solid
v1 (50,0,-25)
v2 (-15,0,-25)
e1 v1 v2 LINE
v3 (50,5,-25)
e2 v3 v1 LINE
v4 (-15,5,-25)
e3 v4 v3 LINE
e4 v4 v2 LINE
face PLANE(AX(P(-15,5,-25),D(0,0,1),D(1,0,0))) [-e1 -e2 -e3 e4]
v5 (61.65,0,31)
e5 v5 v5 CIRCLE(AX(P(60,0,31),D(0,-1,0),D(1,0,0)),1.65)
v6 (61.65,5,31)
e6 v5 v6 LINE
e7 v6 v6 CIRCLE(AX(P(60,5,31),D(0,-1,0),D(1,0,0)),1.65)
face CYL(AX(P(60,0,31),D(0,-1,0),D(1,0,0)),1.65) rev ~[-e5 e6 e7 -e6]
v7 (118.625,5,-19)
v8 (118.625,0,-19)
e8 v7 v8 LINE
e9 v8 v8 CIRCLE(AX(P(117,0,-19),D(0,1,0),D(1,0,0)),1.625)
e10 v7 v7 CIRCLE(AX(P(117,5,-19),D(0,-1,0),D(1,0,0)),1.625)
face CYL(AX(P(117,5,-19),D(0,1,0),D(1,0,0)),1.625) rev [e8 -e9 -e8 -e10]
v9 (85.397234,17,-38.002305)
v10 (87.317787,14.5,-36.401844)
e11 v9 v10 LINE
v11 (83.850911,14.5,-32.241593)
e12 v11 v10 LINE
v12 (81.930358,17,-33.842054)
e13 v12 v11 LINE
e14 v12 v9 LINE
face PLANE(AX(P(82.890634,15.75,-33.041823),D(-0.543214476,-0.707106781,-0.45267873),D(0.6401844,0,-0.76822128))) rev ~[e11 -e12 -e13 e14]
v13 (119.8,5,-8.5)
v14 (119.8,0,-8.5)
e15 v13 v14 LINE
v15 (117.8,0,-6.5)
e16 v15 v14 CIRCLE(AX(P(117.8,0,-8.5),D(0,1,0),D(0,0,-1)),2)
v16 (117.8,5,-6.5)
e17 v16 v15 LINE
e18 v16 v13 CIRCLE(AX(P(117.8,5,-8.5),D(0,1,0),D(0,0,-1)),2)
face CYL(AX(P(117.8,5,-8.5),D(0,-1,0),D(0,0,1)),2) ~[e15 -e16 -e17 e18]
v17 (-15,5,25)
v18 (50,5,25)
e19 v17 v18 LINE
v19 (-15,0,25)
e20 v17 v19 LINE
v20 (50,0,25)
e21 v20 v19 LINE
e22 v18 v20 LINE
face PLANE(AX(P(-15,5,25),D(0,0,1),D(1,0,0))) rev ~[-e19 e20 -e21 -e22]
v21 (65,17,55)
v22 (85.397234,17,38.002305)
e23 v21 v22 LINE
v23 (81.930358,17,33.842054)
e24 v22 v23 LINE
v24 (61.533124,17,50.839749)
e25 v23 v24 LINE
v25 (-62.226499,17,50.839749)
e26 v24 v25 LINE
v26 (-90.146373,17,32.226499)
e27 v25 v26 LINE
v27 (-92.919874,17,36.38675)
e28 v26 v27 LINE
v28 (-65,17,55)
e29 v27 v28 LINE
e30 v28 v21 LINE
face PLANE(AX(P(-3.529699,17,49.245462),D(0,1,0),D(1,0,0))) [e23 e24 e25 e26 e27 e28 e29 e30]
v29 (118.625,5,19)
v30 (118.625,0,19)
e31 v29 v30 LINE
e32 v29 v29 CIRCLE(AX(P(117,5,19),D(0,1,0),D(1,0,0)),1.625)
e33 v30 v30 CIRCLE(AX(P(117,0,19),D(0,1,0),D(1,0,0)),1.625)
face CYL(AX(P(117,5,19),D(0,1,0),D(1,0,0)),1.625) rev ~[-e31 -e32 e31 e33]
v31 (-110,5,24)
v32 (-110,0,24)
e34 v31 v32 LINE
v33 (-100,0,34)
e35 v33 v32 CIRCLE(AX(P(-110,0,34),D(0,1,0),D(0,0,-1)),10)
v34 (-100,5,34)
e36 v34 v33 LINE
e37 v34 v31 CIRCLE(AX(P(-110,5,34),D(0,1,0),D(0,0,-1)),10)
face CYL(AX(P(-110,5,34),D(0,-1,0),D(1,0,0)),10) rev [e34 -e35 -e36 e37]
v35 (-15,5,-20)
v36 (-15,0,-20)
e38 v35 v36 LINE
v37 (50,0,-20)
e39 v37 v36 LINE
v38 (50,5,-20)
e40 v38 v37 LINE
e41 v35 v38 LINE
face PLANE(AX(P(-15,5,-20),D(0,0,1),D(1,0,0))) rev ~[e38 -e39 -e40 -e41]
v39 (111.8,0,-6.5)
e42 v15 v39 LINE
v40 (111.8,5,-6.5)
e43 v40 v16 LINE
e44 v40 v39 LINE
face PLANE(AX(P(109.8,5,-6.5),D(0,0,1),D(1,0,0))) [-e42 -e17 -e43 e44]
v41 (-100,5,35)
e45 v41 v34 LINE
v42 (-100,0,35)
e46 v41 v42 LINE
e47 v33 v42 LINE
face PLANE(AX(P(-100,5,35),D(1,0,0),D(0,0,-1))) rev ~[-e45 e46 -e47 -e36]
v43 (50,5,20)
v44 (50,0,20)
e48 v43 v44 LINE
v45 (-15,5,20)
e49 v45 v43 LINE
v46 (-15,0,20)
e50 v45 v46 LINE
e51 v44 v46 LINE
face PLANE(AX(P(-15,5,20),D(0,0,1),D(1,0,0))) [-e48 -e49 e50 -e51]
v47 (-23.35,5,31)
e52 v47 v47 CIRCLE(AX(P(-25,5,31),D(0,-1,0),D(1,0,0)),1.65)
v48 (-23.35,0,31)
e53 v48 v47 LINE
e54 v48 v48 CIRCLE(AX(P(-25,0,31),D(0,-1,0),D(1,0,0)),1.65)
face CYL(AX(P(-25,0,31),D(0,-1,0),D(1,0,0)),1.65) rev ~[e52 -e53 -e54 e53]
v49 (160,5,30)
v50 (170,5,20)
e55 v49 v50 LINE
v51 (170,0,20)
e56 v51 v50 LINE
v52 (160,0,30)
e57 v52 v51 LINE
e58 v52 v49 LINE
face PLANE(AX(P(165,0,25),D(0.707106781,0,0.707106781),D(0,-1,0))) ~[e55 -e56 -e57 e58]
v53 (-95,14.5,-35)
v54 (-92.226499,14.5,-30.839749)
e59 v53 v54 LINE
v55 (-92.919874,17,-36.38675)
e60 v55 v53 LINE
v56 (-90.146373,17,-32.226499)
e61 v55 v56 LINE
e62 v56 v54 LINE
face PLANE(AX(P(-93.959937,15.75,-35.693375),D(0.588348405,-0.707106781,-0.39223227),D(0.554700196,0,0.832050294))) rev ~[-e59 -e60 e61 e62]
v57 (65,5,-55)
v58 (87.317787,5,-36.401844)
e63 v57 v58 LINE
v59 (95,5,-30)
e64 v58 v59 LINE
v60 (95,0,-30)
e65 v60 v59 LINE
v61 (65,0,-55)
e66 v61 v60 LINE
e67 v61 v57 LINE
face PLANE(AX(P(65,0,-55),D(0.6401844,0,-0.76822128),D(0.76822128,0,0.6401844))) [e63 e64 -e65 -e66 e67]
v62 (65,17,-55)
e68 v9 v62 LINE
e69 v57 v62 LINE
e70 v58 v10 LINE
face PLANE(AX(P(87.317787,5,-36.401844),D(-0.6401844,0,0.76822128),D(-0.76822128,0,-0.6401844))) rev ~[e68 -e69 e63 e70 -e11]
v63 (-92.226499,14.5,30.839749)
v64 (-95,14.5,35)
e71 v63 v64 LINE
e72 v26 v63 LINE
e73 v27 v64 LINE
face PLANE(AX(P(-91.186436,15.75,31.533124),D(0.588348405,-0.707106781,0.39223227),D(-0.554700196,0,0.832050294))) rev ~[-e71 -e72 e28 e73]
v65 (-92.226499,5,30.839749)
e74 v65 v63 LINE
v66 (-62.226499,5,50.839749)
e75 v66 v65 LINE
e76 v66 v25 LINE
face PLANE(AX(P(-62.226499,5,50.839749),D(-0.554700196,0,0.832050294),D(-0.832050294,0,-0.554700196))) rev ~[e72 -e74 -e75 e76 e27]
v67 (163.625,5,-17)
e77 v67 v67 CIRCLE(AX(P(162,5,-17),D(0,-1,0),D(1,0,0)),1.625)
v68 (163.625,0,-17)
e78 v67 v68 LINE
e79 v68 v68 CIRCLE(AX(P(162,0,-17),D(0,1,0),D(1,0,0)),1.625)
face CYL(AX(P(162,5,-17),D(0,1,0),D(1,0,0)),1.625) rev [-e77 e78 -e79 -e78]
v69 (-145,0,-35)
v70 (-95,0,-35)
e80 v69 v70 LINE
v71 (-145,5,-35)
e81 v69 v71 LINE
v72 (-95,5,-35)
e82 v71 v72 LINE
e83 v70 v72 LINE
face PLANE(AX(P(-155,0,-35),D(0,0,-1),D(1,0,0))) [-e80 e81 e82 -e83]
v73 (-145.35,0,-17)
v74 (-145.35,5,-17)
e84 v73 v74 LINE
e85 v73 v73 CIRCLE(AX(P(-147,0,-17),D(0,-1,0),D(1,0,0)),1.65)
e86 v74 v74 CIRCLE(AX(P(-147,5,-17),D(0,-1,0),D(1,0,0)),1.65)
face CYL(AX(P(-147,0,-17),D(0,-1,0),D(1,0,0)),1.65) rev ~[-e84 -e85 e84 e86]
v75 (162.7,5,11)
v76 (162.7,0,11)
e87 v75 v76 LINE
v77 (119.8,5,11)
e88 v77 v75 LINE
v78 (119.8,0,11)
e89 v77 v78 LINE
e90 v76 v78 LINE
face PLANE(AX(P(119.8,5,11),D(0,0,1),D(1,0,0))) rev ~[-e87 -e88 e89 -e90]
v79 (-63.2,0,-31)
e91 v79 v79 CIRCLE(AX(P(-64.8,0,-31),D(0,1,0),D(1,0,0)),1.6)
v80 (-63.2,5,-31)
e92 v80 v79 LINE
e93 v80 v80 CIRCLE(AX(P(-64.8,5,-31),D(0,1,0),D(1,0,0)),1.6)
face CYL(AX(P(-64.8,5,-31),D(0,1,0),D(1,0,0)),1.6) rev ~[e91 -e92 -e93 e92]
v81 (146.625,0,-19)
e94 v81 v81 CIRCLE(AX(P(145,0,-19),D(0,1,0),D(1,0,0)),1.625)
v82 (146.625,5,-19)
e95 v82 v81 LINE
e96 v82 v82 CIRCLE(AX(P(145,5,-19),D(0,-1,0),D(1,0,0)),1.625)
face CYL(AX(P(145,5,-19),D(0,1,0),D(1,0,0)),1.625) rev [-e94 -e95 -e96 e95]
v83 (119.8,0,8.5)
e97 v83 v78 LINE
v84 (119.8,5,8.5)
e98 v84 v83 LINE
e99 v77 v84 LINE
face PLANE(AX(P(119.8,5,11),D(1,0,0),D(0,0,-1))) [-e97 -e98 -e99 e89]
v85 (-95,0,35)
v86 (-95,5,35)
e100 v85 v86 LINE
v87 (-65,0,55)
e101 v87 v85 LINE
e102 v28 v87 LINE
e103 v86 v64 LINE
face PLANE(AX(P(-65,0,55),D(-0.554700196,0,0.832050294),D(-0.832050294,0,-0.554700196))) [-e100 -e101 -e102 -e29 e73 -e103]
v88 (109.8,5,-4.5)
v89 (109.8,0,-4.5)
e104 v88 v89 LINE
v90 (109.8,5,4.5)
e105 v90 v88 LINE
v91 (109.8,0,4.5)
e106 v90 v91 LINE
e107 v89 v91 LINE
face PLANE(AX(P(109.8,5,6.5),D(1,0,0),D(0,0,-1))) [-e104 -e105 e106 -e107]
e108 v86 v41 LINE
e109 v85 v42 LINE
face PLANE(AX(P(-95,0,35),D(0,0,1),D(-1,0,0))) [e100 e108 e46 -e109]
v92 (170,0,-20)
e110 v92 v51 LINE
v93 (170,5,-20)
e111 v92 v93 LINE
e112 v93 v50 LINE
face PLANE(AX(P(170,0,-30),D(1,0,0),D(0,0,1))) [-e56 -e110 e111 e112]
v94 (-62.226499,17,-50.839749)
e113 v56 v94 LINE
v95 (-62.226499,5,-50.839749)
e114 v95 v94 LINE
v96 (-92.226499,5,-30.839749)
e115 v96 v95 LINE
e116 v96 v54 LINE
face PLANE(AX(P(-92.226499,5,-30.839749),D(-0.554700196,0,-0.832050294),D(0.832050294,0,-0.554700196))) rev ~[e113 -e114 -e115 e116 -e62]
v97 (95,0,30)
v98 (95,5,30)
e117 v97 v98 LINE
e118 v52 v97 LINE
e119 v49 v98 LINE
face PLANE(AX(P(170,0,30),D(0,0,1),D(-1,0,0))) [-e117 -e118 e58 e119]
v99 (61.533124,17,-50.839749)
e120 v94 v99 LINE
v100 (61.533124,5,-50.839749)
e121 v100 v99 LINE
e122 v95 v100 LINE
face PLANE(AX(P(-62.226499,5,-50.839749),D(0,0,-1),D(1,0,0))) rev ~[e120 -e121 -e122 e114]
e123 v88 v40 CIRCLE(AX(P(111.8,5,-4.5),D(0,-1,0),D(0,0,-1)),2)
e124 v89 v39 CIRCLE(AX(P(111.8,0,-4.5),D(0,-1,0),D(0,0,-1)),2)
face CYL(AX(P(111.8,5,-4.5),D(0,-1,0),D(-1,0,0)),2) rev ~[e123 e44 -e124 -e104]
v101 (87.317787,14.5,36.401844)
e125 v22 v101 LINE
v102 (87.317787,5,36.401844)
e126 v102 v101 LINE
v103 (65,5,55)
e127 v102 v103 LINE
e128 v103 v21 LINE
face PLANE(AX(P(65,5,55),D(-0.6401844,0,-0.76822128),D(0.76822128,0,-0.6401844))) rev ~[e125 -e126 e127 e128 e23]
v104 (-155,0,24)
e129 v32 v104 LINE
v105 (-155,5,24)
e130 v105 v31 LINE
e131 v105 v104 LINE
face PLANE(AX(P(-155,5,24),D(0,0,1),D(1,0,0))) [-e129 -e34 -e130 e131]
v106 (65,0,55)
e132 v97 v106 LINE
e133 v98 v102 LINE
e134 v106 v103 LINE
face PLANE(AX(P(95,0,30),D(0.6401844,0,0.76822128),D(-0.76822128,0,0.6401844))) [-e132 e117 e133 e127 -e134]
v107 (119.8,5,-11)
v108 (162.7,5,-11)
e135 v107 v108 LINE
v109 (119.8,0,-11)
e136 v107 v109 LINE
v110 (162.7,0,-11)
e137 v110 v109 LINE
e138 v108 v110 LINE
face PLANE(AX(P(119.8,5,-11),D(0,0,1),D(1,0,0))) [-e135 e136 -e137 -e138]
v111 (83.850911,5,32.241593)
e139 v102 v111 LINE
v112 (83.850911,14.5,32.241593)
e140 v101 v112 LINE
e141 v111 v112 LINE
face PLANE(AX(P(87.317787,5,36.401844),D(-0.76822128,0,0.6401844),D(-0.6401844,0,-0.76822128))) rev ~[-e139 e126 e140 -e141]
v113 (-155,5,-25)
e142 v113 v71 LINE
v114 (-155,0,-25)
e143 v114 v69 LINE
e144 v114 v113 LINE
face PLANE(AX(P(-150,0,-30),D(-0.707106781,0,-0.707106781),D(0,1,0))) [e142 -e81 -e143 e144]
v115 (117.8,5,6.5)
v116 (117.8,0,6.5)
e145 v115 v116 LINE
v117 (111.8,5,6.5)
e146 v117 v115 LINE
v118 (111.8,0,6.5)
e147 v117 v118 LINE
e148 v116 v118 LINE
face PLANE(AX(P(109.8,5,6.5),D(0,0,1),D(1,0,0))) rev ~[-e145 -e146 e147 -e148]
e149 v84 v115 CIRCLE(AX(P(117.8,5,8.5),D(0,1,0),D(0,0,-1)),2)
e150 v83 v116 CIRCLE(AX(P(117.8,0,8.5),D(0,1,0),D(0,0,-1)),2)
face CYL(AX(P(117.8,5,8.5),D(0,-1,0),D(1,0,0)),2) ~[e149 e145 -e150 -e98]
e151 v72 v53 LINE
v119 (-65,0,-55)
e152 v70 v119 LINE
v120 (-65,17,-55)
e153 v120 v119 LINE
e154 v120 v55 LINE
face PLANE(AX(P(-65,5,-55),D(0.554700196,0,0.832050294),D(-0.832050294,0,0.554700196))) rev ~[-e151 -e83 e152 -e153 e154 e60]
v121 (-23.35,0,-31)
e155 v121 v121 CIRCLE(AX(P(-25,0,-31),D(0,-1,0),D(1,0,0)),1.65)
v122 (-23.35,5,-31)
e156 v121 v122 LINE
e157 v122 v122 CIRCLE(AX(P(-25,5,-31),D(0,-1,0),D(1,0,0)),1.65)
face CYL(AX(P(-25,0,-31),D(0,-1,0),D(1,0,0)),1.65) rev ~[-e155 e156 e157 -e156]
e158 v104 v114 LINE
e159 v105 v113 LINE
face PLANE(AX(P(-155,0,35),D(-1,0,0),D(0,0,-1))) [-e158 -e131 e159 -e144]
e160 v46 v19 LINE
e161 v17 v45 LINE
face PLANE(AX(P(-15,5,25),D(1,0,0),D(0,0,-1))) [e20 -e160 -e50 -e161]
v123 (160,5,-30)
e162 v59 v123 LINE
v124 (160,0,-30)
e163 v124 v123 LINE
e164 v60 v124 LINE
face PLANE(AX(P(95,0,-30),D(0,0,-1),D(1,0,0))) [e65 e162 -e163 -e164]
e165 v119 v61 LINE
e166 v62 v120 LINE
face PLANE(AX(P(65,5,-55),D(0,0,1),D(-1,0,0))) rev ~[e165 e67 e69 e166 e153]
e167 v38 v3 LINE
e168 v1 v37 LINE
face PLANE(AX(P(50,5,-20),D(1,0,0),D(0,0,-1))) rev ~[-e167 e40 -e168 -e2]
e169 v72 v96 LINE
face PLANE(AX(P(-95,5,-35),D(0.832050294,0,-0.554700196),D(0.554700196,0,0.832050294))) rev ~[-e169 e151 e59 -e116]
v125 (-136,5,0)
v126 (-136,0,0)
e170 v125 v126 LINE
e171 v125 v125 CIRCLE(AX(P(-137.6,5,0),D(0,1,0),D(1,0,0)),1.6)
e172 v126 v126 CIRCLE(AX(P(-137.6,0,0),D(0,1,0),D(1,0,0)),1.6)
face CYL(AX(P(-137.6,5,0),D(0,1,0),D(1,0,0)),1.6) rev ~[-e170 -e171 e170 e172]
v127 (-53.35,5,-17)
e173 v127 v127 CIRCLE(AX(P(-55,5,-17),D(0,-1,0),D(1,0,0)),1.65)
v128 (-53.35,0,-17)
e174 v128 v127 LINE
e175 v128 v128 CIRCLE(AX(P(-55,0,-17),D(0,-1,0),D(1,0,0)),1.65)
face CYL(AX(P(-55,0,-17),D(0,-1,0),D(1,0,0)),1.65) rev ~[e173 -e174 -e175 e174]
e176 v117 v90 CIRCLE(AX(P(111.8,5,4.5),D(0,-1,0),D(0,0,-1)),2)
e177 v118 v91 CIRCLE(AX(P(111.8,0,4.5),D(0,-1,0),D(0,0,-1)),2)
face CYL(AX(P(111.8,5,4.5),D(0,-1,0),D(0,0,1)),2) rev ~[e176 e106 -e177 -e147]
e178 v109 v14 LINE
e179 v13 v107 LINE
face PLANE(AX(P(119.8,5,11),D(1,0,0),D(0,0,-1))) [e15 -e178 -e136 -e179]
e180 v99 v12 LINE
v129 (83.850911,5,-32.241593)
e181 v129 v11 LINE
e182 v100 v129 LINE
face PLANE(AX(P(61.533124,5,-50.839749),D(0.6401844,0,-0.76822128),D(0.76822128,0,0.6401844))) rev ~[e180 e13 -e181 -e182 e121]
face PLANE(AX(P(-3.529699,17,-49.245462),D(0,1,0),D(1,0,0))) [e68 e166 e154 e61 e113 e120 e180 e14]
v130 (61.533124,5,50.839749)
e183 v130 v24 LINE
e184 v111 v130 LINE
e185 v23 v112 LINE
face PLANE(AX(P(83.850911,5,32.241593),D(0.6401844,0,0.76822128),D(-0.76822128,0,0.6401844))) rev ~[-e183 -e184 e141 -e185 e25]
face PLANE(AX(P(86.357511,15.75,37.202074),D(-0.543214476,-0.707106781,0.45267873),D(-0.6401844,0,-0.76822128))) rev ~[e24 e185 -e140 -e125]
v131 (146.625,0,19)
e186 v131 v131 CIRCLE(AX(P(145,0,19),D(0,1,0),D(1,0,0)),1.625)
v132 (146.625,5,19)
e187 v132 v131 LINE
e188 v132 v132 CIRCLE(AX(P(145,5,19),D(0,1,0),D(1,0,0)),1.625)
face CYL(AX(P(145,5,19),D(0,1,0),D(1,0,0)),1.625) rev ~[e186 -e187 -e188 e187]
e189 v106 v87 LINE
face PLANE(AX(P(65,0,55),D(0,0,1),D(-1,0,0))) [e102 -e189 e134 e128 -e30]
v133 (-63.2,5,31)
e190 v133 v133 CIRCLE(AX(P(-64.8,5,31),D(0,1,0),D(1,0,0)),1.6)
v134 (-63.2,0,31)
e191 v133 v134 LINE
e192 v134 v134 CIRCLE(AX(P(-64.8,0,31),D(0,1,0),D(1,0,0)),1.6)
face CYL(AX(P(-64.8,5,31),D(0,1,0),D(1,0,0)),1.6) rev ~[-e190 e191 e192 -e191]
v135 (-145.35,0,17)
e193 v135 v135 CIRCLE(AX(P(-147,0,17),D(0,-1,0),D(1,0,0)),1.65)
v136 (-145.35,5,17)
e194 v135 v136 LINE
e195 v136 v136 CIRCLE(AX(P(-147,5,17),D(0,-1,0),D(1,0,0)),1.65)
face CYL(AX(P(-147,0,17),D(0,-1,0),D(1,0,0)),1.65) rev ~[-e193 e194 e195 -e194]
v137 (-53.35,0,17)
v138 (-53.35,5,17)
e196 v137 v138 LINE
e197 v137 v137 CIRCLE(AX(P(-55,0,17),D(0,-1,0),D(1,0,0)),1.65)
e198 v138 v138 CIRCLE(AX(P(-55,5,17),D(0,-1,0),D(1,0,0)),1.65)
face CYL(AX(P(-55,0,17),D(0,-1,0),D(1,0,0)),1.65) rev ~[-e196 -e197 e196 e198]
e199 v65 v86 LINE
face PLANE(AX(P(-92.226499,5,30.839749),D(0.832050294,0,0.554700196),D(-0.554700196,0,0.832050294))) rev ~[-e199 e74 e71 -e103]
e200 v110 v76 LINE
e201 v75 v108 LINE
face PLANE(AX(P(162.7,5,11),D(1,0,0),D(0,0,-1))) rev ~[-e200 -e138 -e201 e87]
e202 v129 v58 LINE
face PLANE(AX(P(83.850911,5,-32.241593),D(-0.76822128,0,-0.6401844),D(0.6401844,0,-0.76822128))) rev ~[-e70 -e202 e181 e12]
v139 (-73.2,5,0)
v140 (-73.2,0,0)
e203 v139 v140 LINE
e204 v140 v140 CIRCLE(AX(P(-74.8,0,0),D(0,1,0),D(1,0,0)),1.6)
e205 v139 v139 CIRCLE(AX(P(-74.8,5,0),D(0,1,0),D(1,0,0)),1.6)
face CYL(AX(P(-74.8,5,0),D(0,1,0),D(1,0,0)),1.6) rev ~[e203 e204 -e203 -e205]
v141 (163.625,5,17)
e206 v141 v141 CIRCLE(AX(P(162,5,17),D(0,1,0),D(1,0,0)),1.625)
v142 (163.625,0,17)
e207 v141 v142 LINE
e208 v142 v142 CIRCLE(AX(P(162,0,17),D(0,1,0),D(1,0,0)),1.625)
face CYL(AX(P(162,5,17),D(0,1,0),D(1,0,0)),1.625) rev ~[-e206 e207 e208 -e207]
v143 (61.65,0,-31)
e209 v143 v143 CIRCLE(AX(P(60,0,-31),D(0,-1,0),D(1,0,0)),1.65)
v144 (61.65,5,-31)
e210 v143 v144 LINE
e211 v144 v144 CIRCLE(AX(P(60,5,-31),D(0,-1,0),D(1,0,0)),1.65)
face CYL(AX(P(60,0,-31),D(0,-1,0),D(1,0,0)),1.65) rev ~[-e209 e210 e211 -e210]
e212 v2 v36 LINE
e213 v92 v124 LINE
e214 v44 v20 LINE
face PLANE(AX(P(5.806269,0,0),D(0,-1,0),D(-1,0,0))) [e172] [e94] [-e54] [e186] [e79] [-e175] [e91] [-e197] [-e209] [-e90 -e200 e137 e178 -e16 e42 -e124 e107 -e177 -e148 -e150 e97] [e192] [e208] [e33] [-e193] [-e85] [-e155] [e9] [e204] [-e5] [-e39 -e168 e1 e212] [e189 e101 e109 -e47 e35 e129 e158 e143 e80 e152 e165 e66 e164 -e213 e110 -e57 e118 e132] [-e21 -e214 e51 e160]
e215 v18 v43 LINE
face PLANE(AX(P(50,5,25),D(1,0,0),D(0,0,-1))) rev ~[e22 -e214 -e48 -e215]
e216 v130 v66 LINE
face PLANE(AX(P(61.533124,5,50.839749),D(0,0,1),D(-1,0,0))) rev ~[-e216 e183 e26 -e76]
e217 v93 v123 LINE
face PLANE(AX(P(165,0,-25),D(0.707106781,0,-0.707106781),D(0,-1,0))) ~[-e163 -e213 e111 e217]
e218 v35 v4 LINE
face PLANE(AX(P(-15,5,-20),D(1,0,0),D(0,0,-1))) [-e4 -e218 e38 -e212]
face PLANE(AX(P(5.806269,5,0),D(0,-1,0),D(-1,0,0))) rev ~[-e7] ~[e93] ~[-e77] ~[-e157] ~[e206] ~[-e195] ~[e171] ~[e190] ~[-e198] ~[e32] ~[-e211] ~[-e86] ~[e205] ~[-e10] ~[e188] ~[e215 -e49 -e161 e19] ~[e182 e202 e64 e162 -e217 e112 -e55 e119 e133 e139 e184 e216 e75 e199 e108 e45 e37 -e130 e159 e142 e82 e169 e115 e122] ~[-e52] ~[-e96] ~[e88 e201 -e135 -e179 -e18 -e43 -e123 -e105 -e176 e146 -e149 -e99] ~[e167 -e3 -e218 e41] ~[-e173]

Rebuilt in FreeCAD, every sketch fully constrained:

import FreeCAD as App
import Part
import Sketcher
from FreeCAD import Vector
Q = App.Units.Quantity


def edges_at(feature, points):
    """Names of the edges that pass closest to the given points."""
    edges = feature.Shape.Edges
    near = lambda p: min(range(len(edges)), key=lambda i: edges[i].distToShape(Part.Vertex(*p))[0])
    return sorted({f"Edge{near(p) + 1}" for p in points})

doc = App.newDocument("Part")
body = doc.addObject("PartDesign::Body", "Body")

sketch1 = body.newObject("Sketcher::SketchObject", "Sketch")
sketch1.AttachmentSupport = (doc.getObject("XZ_Plane"), [""])
sketch1.MapMode = "FlatFace"
sketch1.addGeometry(Part.LineSegment(Vector(-65, -55, 0), Vector(-95, -35, 0)), False)
sketch1.addGeometry(Part.LineSegment(Vector(-95, -35, 0), Vector(-155, -35, 0)), False)
sketch1.addGeometry(Part.LineSegment(Vector(-155, -35, 0), Vector(-155, 35, 0)), False)
sketch1.addGeometry(Part.LineSegment(Vector(-155, 35, 0), Vector(-95, 35, 0)), False)
sketch1.addGeometry(Part.LineSegment(Vector(-95, 35, 0), Vector(-65, 55, 0)), False)
sketch1.addGeometry(Part.LineSegment(Vector(-65, 55, 0), Vector(65, 55, 0)), False)
sketch1.addGeometry(Part.LineSegment(Vector(65, 55, 0), Vector(95, 30, 0)), False)
sketch1.addGeometry(Part.LineSegment(Vector(95, 30, 0), Vector(170, 30, 0)), False)
sketch1.addGeometry(Part.LineSegment(Vector(170, 30, 0), Vector(170, -30, 0)), False)
sketch1.addGeometry(Part.LineSegment(Vector(170, -30, 0), Vector(95, -30, 0)), False)
sketch1.addGeometry(Part.LineSegment(Vector(95, -30, 0), Vector(65, -55, 0)), False)
sketch1.addGeometry(Part.LineSegment(Vector(65, -55, 0), Vector(-65, -55, 0)), False)
sketch1.addConstraint(Sketcher.Constraint("Coincident", 0, 2, 1, 1))
sketch1.addConstraint(Sketcher.Constraint("Coincident", 1, 2, 2, 1))
sketch1.addConstraint(Sketcher.Constraint("Coincident", 2, 2, 3, 1))
sketch1.addConstraint(Sketcher.Constraint("Coincident", 3, 2, 4, 1))
sketch1.addConstraint(Sketcher.Constraint("Coincident", 4, 2, 5, 1))
sketch1.addConstraint(Sketcher.Constraint("Coincident", 5, 2, 6, 1))
sketch1.addConstraint(Sketcher.Constraint("Coincident", 6, 2, 7, 1))
sketch1.addConstraint(Sketcher.Constraint("Coincident", 7, 2, 8, 1))
sketch1.addConstraint(Sketcher.Constraint("Coincident", 8, 2, 9, 1))
sketch1.addConstraint(Sketcher.Constraint("Coincident", 9, 2, 10, 1))
sketch1.addConstraint(Sketcher.Constraint("Coincident", 10, 2, 11, 1))
sketch1.addConstraint(Sketcher.Constraint("Coincident", 11, 2, 0, 1))
sketch1.addConstraint(Sketcher.Constraint("Horizontal", 1))
sketch1.addConstraint(Sketcher.Constraint("Vertical", 2))
sketch1.addConstraint(Sketcher.Constraint("Horizontal", 3))
sketch1.addConstraint(Sketcher.Constraint("Horizontal", 5))
sketch1.addConstraint(Sketcher.Constraint("Horizontal", 7))
sketch1.addConstraint(Sketcher.Constraint("Vertical", 8))
sketch1.addConstraint(Sketcher.Constraint("Horizontal", 9))
sketch1.addConstraint(Sketcher.Constraint("Horizontal", 11))
sketch1.addConstraint(Sketcher.Constraint("Symmetric", 4, 2, 10, 2, -1, 1))
sketch1.addConstraint(Sketcher.Constraint("Symmetric", 0, 2, 3, 2, -1))
sketch1.addConstraint(Sketcher.Constraint("Symmetric", 6, 2, 9, 2, -1))
sketch1.addConstraint(Sketcher.Constraint("Vertical", 5, 2, 10, 2))
sketch1.addConstraint(Sketcher.Constraint("Vertical", 4, 2, 11, 2))
sketch1.addConstraint(Sketcher.Constraint("Equal", 3, 8))
sketch1.addConstraint(Sketcher.Constraint("DistanceX", 1, 2, 1, 1, Q("60 mm")))
sketch1.addConstraint(Sketcher.Constraint("DistanceX", 5, 1, 5, 2, Q("130 mm")))
sketch1.addConstraint(Sketcher.Constraint("DistanceX", 7, 1, 7, 2, Q("75 mm")))
sketch1.addConstraint(Sketcher.Constraint("DistanceY", 2, 1, 2, 2, Q("70 mm")))
sketch1.addConstraint(Sketcher.Constraint("DistanceX", 0, 2, -1, 1, Q("95 mm")))
sketch1.addConstraint(Sketcher.Constraint("DistanceY", -1, 1, 4, 2, Q("55 mm")))
sketch1.addConstraint(Sketcher.Constraint("DistanceX", -1, 1, 6, 2, Q("95 mm")))
pad1 = body.newObject("PartDesign::Pad", "Pad")
pad1.Profile = sketch1
pad1.Length = 5
pad1.Reversed = True

sketch2 = body.newObject("Sketcher::SketchObject", "Sketch001")
sketch2.AttachmentSupport = (doc.getObject("XZ_Plane"), [""])
sketch2.MapMode = "FlatFace"
sketch2.AttachmentOffset = App.Placement(Vector(0, 0, -5), App.Rotation())
sketch2.addGeometry(Part.LineSegment(Vector(-65, -55, 0), Vector(-95, -35, 0)), False)
sketch2.addGeometry(Part.LineSegment(Vector(-95, -35, 0), Vector(-92, -31, 0)), False)
sketch2.addGeometry(Part.LineSegment(Vector(-92, -31, 0), Vector(-62, -51, 0)), False)
sketch2.addGeometry(Part.LineSegment(Vector(-62, -51, 0), Vector(62, -51, 0)), False)
sketch2.addGeometry(Part.LineSegment(Vector(62, -51, 0), Vector(84, -32, 0)), False)
sketch2.addGeometry(Part.LineSegment(Vector(84, -32, 0), Vector(87, -36, 0)), False)
sketch2.addGeometry(Part.LineSegment(Vector(87, -36, 0), Vector(65, -55, 0)), False)
sketch2.addGeometry(Part.LineSegment(Vector(65, -55, 0), Vector(-65, -55, 0)), False)
sketch2.addGeometry(Part.LineSegment(Vector(62, 51, 0), Vector(-62, 51, 0)), False)
sketch2.addGeometry(Part.LineSegment(Vector(-62, 51, 0), Vector(-92, 31, 0)), False)
sketch2.addGeometry(Part.LineSegment(Vector(-92, 31, 0), Vector(-95, 35, 0)), False)
sketch2.addGeometry(Part.LineSegment(Vector(-95, 35, 0), Vector(-65, 55, 0)), False)
sketch2.addGeometry(Part.LineSegment(Vector(-65, 55, 0), Vector(65, 55, 0)), False)
sketch2.addGeometry(Part.LineSegment(Vector(65, 55, 0), Vector(87, 36, 0)), False)
sketch2.addGeometry(Part.LineSegment(Vector(87, 36, 0), Vector(84, 32, 0)), False)
sketch2.addGeometry(Part.LineSegment(Vector(84, 32, 0), Vector(62, 51, 0)), False)
sketch2.addConstraint(Sketcher.Constraint("Coincident", 0, 2, 1, 1))
sketch2.addConstraint(Sketcher.Constraint("Coincident", 1, 2, 2, 1))
sketch2.addConstraint(Sketcher.Constraint("Coincident", 2, 2, 3, 1))
sketch2.addConstraint(Sketcher.Constraint("Coincident", 3, 2, 4, 1))
sketch2.addConstraint(Sketcher.Constraint("Coincident", 4, 2, 5, 1))
sketch2.addConstraint(Sketcher.Constraint("Coincident", 5, 2, 6, 1))
sketch2.addConstraint(Sketcher.Constraint("Coincident", 6, 2, 7, 1))
sketch2.addConstraint(Sketcher.Constraint("Coincident", 7, 2, 0, 1))
sketch2.addConstraint(Sketcher.Constraint("Coincident", 8, 2, 9, 1))
sketch2.addConstraint(Sketcher.Constraint("Coincident", 9, 2, 10, 1))
sketch2.addConstraint(Sketcher.Constraint("Coincident", 10, 2, 11, 1))
sketch2.addConstraint(Sketcher.Constraint("Coincident", 11, 2, 12, 1))
sketch2.addConstraint(Sketcher.Constraint("Coincident", 12, 2, 13, 1))
sketch2.addConstraint(Sketcher.Constraint("Coincident", 13, 2, 14, 1))
sketch2.addConstraint(Sketcher.Constraint("Coincident", 14, 2, 15, 1))
sketch2.addConstraint(Sketcher.Constraint("Coincident", 15, 2, 8, 1))
sketch2.addConstraint(Sketcher.Constraint("Horizontal", 3))
sketch2.addConstraint(Sketcher.Constraint("Horizontal", 7))
sketch2.addConstraint(Sketcher.Constraint("Horizontal", 8))
sketch2.addConstraint(Sketcher.Constraint("Horizontal", 12))
sketch2.addConstraint(Sketcher.Constraint("Symmetric", 6, 2, 11, 2, -1, 1))
sketch2.addConstraint(Sketcher.Constraint("Symmetric", 2, 2, 8, 2, -1))
sketch2.addConstraint(Sketcher.Constraint("Symmetric", 1, 2, 9, 2, -1))
sketch2.addConstraint(Sketcher.Constraint("Symmetric", 0, 2, 10, 2, -1))
sketch2.addConstraint(Sketcher.Constraint("Symmetric", 5, 2, 13, 2, -1))
sketch2.addConstraint(Sketcher.Constraint("Symmetric", 4, 2, 14, 2, -1))
sketch2.addConstraint(Sketcher.Constraint("Perpendicular", 0, 1))
sketch2.addConstraint(Sketcher.Constraint("Perpendicular", 1, 2))
sketch2.addConstraint(Sketcher.Constraint("Perpendicular", 4, 5))
sketch2.addConstraint(Sketcher.Constraint("Perpendicular", 5, 6))
sketch2.addConstraint(Sketcher.Constraint("Perpendicular", 10, 11))
sketch2.addConstraint(Sketcher.Constraint("Perpendicular", 13, 14))
sketch2.addConstraint(Sketcher.Constraint("Perpendicular", 14, 15))
sketch2.addConstraint(Sketcher.Constraint("Equal", 0, 2))
sketch2.addConstraint(Sketcher.Constraint("Equal", 4, 6))
sketch2.addConstraint(Sketcher.Constraint("DistanceX", 7, 2, 7, 1, Q("130 mm")))
sketch2.addConstraint(Sketcher.Constraint("Distance", 1, Q("5 mm")))
sketch2.addConstraint(Sketcher.Constraint("DistanceX", 0, 2, -1, 1, Q("95 mm")))
sketch2.addConstraint(Sketcher.Constraint("DistanceY", 0, 2, -1, 1, Q("35 mm")))
sketch2.addConstraint(Sketcher.Constraint("DistanceY", 6, 2, -1, 1, Q("55 mm")))
sketch2.addConstraint(Sketcher.Constraint("Distance", 4, Q("29.051248 mm")))
sketch2.addConstraint(Sketcher.Constraint("DistanceX", 3, 1, 3, 2, Q("123.759623 mm")))
pad2 = body.newObject("PartDesign::Pad", "Pad001")
pad2.Profile = sketch2
pad2.Length = 12
pad2.Reversed = True
doc.recompute()

chamfer = body.newObject("PartDesign::Chamfer", "Chamfer")
chamfer.Base = (pad2, edges_at(pad2, [(-155, 2.5, 35), (-155, 2.5, -35)]))
chamfer.Size = 10
doc.recompute()

chamfer2 = body.newObject("PartDesign::Chamfer", "Chamfer001")
chamfer2.Base = (chamfer, edges_at(chamfer, [(170, 2.5, -30), (170, 2.5, 30)]))
chamfer2.Size = 10
doc.recompute()

chamfer3 = body.newObject("PartDesign::Chamfer", "Chamfer002")
chamfer3.Base = (chamfer2, edges_at(chamfer2, [
    (-93.613, 17, -32.92),
    (85.584, 17, -34.322),
    (-93.613, 17, 32.92),
    (85.584, 17, 34.322),
]))
chamfer3.Size = 2.5

sketch3 = body.newObject("Sketcher::SketchObject", "Sketch002")
sketch3.AttachmentSupport = (doc.getObject("XZ_Plane"), [""])
sketch3.MapMode = "FlatFace"
sketch3.addGeometry(Part.Circle(Vector(-147, 17, 0), Vector(0, 0, 1), 1.6), False)
sketch3.addGeometry(Part.Circle(Vector(-55, 17, 0), Vector(0, 0, 1), 1.6), False)
sketch3.addGeometry(Part.Circle(Vector(-55, -17, 0), Vector(0, 0, 1), 1.6), False)
sketch3.addGeometry(Part.Circle(Vector(-147, -17, 0), Vector(0, 0, 1), 1.6), False)
sketch3.addGeometry(Part.Circle(Vector(-25, 31, 0), Vector(0, 0, 1), 1.6), False)
sketch3.addGeometry(Part.Circle(Vector(60, 31, 0), Vector(0, 0, 1), 1.6), False)
sketch3.addGeometry(Part.Circle(Vector(60, -31, 0), Vector(0, 0, 1), 1.6), False)
sketch3.addGeometry(Part.Circle(Vector(-25, -31, 0), Vector(0, 0, 1), 1.6), False)
sketch3.addConstraint(Sketcher.Constraint("Equal", 0, 1))
sketch3.addConstraint(Sketcher.Constraint("Equal", 1, 2))
sketch3.addConstraint(Sketcher.Constraint("Equal", 2, 3))
sketch3.addConstraint(Sketcher.Constraint("Equal", 3, 4))
sketch3.addConstraint(Sketcher.Constraint("Equal", 4, 5))
sketch3.addConstraint(Sketcher.Constraint("Equal", 5, 6))
sketch3.addConstraint(Sketcher.Constraint("Equal", 6, 7))
sketch3.addConstraint(Sketcher.Constraint("Symmetric", 1, 3, 2, 3, -1))
sketch3.addConstraint(Sketcher.Constraint("Symmetric", 0, 3, 3, 3, -1))
sketch3.addConstraint(Sketcher.Constraint("Symmetric", 5, 3, 6, 3, -1))
sketch3.addConstraint(Sketcher.Constraint("Symmetric", 4, 3, 7, 3, -1))
sketch3.addConstraint(Sketcher.Constraint("Horizontal", 0, 3, 1, 3))
sketch3.addConstraint(Sketcher.Constraint("Horizontal", 4, 3, 5, 3))
sketch3.addConstraint(Sketcher.Constraint("Diameter", 0, Q("3.3 mm")))
sketch3.addConstraint(Sketcher.Constraint("DistanceX", 0, 3, -1, 1, Q("147 mm")))
sketch3.addConstraint(Sketcher.Constraint("DistanceY", -1, 1, 0, 3, Q("17 mm")))
sketch3.addConstraint(Sketcher.Constraint("DistanceX", 1, 3, -1, 1, Q("55 mm")))
sketch3.addConstraint(Sketcher.Constraint("DistanceX", 4, 3, -1, 1, Q("25 mm")))
sketch3.addConstraint(Sketcher.Constraint("DistanceY", -1, 1, 4, 3, Q("31 mm")))
sketch3.addConstraint(Sketcher.Constraint("DistanceX", -1, 1, 5, 3, Q("60 mm")))
pocket1 = body.newObject("PartDesign::Pocket", "Pocket")
pocket1.Profile = sketch3
pocket1.Length = 10

sketch4 = body.newObject("Sketcher::SketchObject", "Sketch003")
sketch4.AttachmentSupport = (doc.getObject("XZ_Plane"), [""])
sketch4.MapMode = "FlatFace"
sketch4.AttachmentOffset = App.Placement(Vector(0, 0, -5), App.Rotation())
sketch4.addGeometry(Part.LineSegment(Vector(-155, 24, 0), Vector(-155, 35, 0)), False)
sketch4.addGeometry(Part.LineSegment(Vector(-155, 35, 0), Vector(-100, 35, 0)), False)
sketch4.addGeometry(Part.LineSegment(Vector(-100, 35, 0), Vector(-100, 24, 0)), False)
sketch4.addGeometry(Part.LineSegment(Vector(-100, 24, 0), Vector(-155, 24, 0)), False)
sketch4.addConstraint(Sketcher.Constraint("Coincident", 0, 2, 1, 1))
sketch4.addConstraint(Sketcher.Constraint("Coincident", 1, 2, 2, 1))
sketch4.addConstraint(Sketcher.Constraint("Coincident", 2, 2, 3, 1))
sketch4.addConstraint(Sketcher.Constraint("Coincident", 3, 2, 0, 1))
sketch4.addConstraint(Sketcher.Constraint("Vertical", 0))
sketch4.addConstraint(Sketcher.Constraint("Horizontal", 1))
sketch4.addConstraint(Sketcher.Constraint("Vertical", 2))
sketch4.addConstraint(Sketcher.Constraint("Horizontal", 3))
sketch4.addConstraint(Sketcher.Constraint("DistanceX", 1, 1, 1, 2, Q("55 mm")))
sketch4.addConstraint(Sketcher.Constraint("DistanceY", 0, 1, 0, 2, Q("11 mm")))
sketch4.addConstraint(Sketcher.Constraint("DistanceX", 0, 2, -1, 1, Q("155 mm")))
sketch4.addConstraint(Sketcher.Constraint("DistanceY", -1, 1, 0, 2, Q("35 mm")))
pocket2 = body.newObject("PartDesign::Pocket", "Pocket001")
pocket2.Profile = sketch4
pocket2.Length = 10
pocket2.Reversed = True

sketch5 = body.newObject("Sketcher::SketchObject", "Sketch004")
sketch5.AttachmentSupport = (doc.getObject("XZ_Plane"), [""])
sketch5.MapMode = "FlatFace"
sketch5.AttachmentOffset = App.Placement(Vector(0, 0, -5), App.Rotation())
sketch5.addGeometry(Part.LineSegment(Vector(-15, -25, 0), Vector(-15, -20, 0)), False)
sketch5.addGeometry(Part.LineSegment(Vector(-15, -20, 0), Vector(50, -20, 0)), False)
sketch5.addGeometry(Part.LineSegment(Vector(50, -20, 0), Vector(50, -25, 0)), False)
sketch5.addGeometry(Part.LineSegment(Vector(50, -25, 0), Vector(-15, -25, 0)), False)
sketch5.addGeometry(Part.LineSegment(Vector(-15, 20, 0), Vector(-15, 25, 0)), False)
sketch5.addGeometry(Part.LineSegment(Vector(-15, 25, 0), Vector(50, 25, 0)), False)
sketch5.addGeometry(Part.LineSegment(Vector(50, 25, 0), Vector(50, 20, 0)), False)
sketch5.addGeometry(Part.LineSegment(Vector(50, 20, 0), Vector(-15, 20, 0)), False)
sketch5.addConstraint(Sketcher.Constraint("Coincident", 0, 2, 1, 1))
sketch5.addConstraint(Sketcher.Constraint("Coincident", 1, 2, 2, 1))
sketch5.addConstraint(Sketcher.Constraint("Coincident", 2, 2, 3, 1))
sketch5.addConstraint(Sketcher.Constraint("Coincident", 3, 2, 0, 1))
sketch5.addConstraint(Sketcher.Constraint("Coincident", 4, 2, 5, 1))
sketch5.addConstraint(Sketcher.Constraint("Coincident", 5, 2, 6, 1))
sketch5.addConstraint(Sketcher.Constraint("Coincident", 6, 2, 7, 1))
sketch5.addConstraint(Sketcher.Constraint("Coincident", 7, 2, 4, 1))
sketch5.addConstraint(Sketcher.Constraint("Vertical", 0))
sketch5.addConstraint(Sketcher.Constraint("Horizontal", 1))
sketch5.addConstraint(Sketcher.Constraint("Vertical", 2))
sketch5.addConstraint(Sketcher.Constraint("Horizontal", 3))
sketch5.addConstraint(Sketcher.Constraint("Vertical", 4))
sketch5.addConstraint(Sketcher.Constraint("Horizontal", 5))
sketch5.addConstraint(Sketcher.Constraint("Vertical", 6))
sketch5.addConstraint(Sketcher.Constraint("Horizontal", 7))
sketch5.addConstraint(Sketcher.Constraint("Symmetric", 3, 2, 4, 2, -1))
sketch5.addConstraint(Sketcher.Constraint("Symmetric", 1, 2, 6, 2, -1))
sketch5.addConstraint(Sketcher.Constraint("DistanceX", 1, 1, 1, 2, Q("65 mm")))
sketch5.addConstraint(Sketcher.Constraint("DistanceY", 0, 1, 0, 2, Q("5 mm")))
sketch5.addConstraint(Sketcher.Constraint("DistanceX", 0, 2, -1, 1, Q("15 mm")))
sketch5.addConstraint(Sketcher.Constraint("DistanceY", 0, 2, -1, 1, Q("20 mm")))
pocket3 = body.newObject("PartDesign::Pocket", "Pocket002")
pocket3.Profile = sketch5
pocket3.Type = "ThroughAll"
pocket3.Reversed = True
doc.recompute()

fillet = body.newObject("PartDesign::Fillet", "Fillet")
fillet.Base = (pocket3, edges_at(pocket3, [(-100, 2.5, 24)]))
fillet.Radius = 10

sketch6 = body.newObject("Sketcher::SketchObject", "Sketch005")
sketch6.AttachmentSupport = (doc.getObject("XZ_Plane"), [""])
sketch6.MapMode = "FlatFace"
sketch6.AttachmentOffset = App.Placement(Vector(0, 0, -5), App.Rotation())
sketch6.addGeometry(Part.LineSegment(Vector(120, -11, 0), Vector(120, 11, 0)), False)
sketch6.addGeometry(Part.LineSegment(Vector(120, 11, 0), Vector(163, 11, 0)), False)
sketch6.addGeometry(Part.LineSegment(Vector(163, 11, 0), Vector(163, -11, 0)), False)
sketch6.addGeometry(Part.LineSegment(Vector(163, -11, 0), Vector(120, -11, 0)), False)
sketch6.addConstraint(Sketcher.Constraint("Coincident", 0, 2, 1, 1))
sketch6.addConstraint(Sketcher.Constraint("Coincident", 1, 2, 2, 1))
sketch6.addConstraint(Sketcher.Constraint("Coincident", 2, 2, 3, 1))
sketch6.addConstraint(Sketcher.Constraint("Coincident", 3, 2, 0, 1))
sketch6.addConstraint(Sketcher.Constraint("Vertical", 0))
sketch6.addConstraint(Sketcher.Constraint("Horizontal", 1))
sketch6.addConstraint(Sketcher.Constraint("Vertical", 2))
sketch6.addConstraint(Sketcher.Constraint("Horizontal", 3))
sketch6.addConstraint(Sketcher.Constraint("DistanceY", 0, 1, 0, 2, Q("22 mm")))
sketch6.addConstraint(Sketcher.Constraint("DistanceX", 1, 1, 1, 2, Q("42.9 mm")))
sketch6.addConstraint(Sketcher.Constraint("DistanceY", -1, 1, 0, 2, Q("11 mm")))
sketch6.addConstraint(Sketcher.Constraint("DistanceX", -1, 1, 0, 2, Q("119.8 mm")))
pocket4 = body.newObject("PartDesign::Pocket", "Pocket003")
pocket4.Profile = sketch6
pocket4.Type = "ThroughAll"
pocket4.Reversed = True

sketch7 = body.newObject("Sketcher::SketchObject", "Sketch006")
sketch7.AttachmentSupport = (doc.getObject("XZ_Plane"), [""])
sketch7.MapMode = "FlatFace"
sketch7.AttachmentOffset = App.Placement(Vector(0, 0, -5), App.Rotation())
sketch7.addGeometry(Part.Circle(Vector(117, 19, 0), Vector(0, 0, 1), 1.6), False)
sketch7.addGeometry(Part.Circle(Vector(145, 19, 0), Vector(0, 0, 1), 1.6), False)
sketch7.addGeometry(Part.Circle(Vector(162, 17, 0), Vector(0, 0, 1), 1.6), False)
sketch7.addConstraint(Sketcher.Constraint("Equal", 0, 1))
sketch7.addConstraint(Sketcher.Constraint("Equal", 1, 2))
sketch7.addConstraint(Sketcher.Constraint("Horizontal", 0, 3, 1, 3))
sketch7.addConstraint(Sketcher.Constraint("Diameter", 0, Q("3.25 mm")))
sketch7.addConstraint(Sketcher.Constraint("DistanceX", -1, 1, 0, 3, Q("117 mm")))
sketch7.addConstraint(Sketcher.Constraint("DistanceY", -1, 1, 0, 3, Q("19 mm")))
sketch7.addConstraint(Sketcher.Constraint("DistanceX", -1, 1, 1, 3, Q("145 mm")))
sketch7.addConstraint(Sketcher.Constraint("DistanceX", -1, 1, 2, 3, Q("162 mm")))
sketch7.addConstraint(Sketcher.Constraint("DistanceY", -1, 1, 2, 3, Q("17 mm")))
pocket5 = body.newObject("PartDesign::Pocket", "Pocket004")
pocket5.Profile = sketch7
pocket5.Type = "ThroughAll"
pocket5.Reversed = True
doc.recompute()

mirrored = body.newObject("PartDesign::Mirrored", "Mirrored")
mirrored.Originals = [pocket5]
mirrored.MirrorPlane = (doc.getObject("XY_Plane"), [""])
body.Tip = mirrored

sketch8 = body.newObject("Sketcher::SketchObject", "Sketch007")
sketch8.AttachmentSupport = (doc.getObject("XZ_Plane"), [""])
sketch8.MapMode = "FlatFace"
sketch8.AttachmentOffset = App.Placement(Vector(0, 0, -5), App.Rotation())
sketch8.addGeometry(Part.LineSegment(Vector(110, -6, 0), Vector(110, 6, 0)), False)
sketch8.addGeometry(Part.LineSegment(Vector(110, 6, 0), Vector(120, 6, 0)), False)
sketch8.addGeometry(Part.LineSegment(Vector(120, 6, 0), Vector(120, -6, 0)), False)
sketch8.addGeometry(Part.LineSegment(Vector(120, -6, 0), Vector(110, -6, 0)), False)
sketch8.addConstraint(Sketcher.Constraint("Coincident", 0, 2, 1, 1))
sketch8.addConstraint(Sketcher.Constraint("Coincident", 1, 2, 2, 1))
sketch8.addConstraint(Sketcher.Constraint("Coincident", 2, 2, 3, 1))
sketch8.addConstraint(Sketcher.Constraint("Coincident", 3, 2, 0, 1))
sketch8.addConstraint(Sketcher.Constraint("Vertical", 0))
sketch8.addConstraint(Sketcher.Constraint("Horizontal", 1))
sketch8.addConstraint(Sketcher.Constraint("Vertical", 2))
sketch8.addConstraint(Sketcher.Constraint("Horizontal", 3))
sketch8.addConstraint(Sketcher.Constraint("DistanceX", 1, 1, 1, 2, Q("10 mm")))
sketch8.addConstraint(Sketcher.Constraint("DistanceY", 0, 1, 0, 2, Q("13 mm")))
sketch8.addConstraint(Sketcher.Constraint("DistanceX", -1, 1, 0, 2, Q("109.8 mm")))
sketch8.addConstraint(Sketcher.Constraint("DistanceY", -1, 1, 0, 2, Q("6.5 mm")))
pocket6 = body.newObject("PartDesign::Pocket", "Pocket005")
pocket6.Profile = sketch8
pocket6.Length = 10
pocket6.Reversed = True
doc.recompute()

fillet2 = body.newObject("PartDesign::Fillet", "Fillet001")
fillet2.Base = (pocket6, edges_at(pocket6, [
    (119.8, 2.5, -6.5),
    (119.8, 2.5, 6.5),
    (109.8, 2.5, 6.5),
    (109.8, 2.5, -6.5),
]))
fillet2.Radius = 2

sketch9 = body.newObject("Sketcher::SketchObject", "Sketch008")
sketch9.AttachmentSupport = (doc.getObject("XZ_Plane"), [""])
sketch9.MapMode = "FlatFace"
sketch9.AttachmentOffset = App.Placement(Vector(0, 0, -5), App.Rotation())
sketch9.addGeometry(Part.Circle(Vector(-137.6, 0, 0), Vector(0, 0, 1), 1.6), False)
sketch9.addGeometry(Part.Circle(Vector(-74.8, 0, 0), Vector(0, 0, 1), 1.6), False)
sketch9.addGeometry(Part.Circle(Vector(-64.8, -31, 0), Vector(0, 0, 1), 1.6), False)
sketch9.addGeometry(Part.Circle(Vector(-64.8, 31, 0), Vector(0, 0, 1), 1.6), False)
sketch9.addConstraint(Sketcher.Constraint("Equal", 0, 1))
sketch9.addConstraint(Sketcher.Constraint("Equal", 1, 2))
sketch9.addConstraint(Sketcher.Constraint("Equal", 2, 3))
sketch9.addConstraint(Sketcher.Constraint("Symmetric", 2, 3, 3, 3, -1))
sketch9.addConstraint(Sketcher.Constraint("PointOnObject", 0, 3, -1))
sketch9.addConstraint(Sketcher.Constraint("PointOnObject", 1, 3, -1))
sketch9.addConstraint(Sketcher.Constraint("Diameter", 0, Q("3.2 mm")))
sketch9.addConstraint(Sketcher.Constraint("DistanceY", 2, 3, -1, 1, Q("31 mm")))
sketch9.addConstraint(Sketcher.Constraint("DistanceX", 1, 3, 2, 3, Q("10 mm")))
sketch9.addConstraint(Sketcher.Constraint("DistanceX", 0, 3, -1, 1, Q("137.6 mm")))
sketch9.addConstraint(Sketcher.Constraint("DistanceX", 1, 3, -1, 1, Q("74.8 mm")))
pocket7 = body.newObject("PartDesign::Pocket", "Pocket006")
pocket7.Profile = sketch9
pocket7.Type = "ThroughAll"
pocket7.Reversed = True

doc.recompute()
